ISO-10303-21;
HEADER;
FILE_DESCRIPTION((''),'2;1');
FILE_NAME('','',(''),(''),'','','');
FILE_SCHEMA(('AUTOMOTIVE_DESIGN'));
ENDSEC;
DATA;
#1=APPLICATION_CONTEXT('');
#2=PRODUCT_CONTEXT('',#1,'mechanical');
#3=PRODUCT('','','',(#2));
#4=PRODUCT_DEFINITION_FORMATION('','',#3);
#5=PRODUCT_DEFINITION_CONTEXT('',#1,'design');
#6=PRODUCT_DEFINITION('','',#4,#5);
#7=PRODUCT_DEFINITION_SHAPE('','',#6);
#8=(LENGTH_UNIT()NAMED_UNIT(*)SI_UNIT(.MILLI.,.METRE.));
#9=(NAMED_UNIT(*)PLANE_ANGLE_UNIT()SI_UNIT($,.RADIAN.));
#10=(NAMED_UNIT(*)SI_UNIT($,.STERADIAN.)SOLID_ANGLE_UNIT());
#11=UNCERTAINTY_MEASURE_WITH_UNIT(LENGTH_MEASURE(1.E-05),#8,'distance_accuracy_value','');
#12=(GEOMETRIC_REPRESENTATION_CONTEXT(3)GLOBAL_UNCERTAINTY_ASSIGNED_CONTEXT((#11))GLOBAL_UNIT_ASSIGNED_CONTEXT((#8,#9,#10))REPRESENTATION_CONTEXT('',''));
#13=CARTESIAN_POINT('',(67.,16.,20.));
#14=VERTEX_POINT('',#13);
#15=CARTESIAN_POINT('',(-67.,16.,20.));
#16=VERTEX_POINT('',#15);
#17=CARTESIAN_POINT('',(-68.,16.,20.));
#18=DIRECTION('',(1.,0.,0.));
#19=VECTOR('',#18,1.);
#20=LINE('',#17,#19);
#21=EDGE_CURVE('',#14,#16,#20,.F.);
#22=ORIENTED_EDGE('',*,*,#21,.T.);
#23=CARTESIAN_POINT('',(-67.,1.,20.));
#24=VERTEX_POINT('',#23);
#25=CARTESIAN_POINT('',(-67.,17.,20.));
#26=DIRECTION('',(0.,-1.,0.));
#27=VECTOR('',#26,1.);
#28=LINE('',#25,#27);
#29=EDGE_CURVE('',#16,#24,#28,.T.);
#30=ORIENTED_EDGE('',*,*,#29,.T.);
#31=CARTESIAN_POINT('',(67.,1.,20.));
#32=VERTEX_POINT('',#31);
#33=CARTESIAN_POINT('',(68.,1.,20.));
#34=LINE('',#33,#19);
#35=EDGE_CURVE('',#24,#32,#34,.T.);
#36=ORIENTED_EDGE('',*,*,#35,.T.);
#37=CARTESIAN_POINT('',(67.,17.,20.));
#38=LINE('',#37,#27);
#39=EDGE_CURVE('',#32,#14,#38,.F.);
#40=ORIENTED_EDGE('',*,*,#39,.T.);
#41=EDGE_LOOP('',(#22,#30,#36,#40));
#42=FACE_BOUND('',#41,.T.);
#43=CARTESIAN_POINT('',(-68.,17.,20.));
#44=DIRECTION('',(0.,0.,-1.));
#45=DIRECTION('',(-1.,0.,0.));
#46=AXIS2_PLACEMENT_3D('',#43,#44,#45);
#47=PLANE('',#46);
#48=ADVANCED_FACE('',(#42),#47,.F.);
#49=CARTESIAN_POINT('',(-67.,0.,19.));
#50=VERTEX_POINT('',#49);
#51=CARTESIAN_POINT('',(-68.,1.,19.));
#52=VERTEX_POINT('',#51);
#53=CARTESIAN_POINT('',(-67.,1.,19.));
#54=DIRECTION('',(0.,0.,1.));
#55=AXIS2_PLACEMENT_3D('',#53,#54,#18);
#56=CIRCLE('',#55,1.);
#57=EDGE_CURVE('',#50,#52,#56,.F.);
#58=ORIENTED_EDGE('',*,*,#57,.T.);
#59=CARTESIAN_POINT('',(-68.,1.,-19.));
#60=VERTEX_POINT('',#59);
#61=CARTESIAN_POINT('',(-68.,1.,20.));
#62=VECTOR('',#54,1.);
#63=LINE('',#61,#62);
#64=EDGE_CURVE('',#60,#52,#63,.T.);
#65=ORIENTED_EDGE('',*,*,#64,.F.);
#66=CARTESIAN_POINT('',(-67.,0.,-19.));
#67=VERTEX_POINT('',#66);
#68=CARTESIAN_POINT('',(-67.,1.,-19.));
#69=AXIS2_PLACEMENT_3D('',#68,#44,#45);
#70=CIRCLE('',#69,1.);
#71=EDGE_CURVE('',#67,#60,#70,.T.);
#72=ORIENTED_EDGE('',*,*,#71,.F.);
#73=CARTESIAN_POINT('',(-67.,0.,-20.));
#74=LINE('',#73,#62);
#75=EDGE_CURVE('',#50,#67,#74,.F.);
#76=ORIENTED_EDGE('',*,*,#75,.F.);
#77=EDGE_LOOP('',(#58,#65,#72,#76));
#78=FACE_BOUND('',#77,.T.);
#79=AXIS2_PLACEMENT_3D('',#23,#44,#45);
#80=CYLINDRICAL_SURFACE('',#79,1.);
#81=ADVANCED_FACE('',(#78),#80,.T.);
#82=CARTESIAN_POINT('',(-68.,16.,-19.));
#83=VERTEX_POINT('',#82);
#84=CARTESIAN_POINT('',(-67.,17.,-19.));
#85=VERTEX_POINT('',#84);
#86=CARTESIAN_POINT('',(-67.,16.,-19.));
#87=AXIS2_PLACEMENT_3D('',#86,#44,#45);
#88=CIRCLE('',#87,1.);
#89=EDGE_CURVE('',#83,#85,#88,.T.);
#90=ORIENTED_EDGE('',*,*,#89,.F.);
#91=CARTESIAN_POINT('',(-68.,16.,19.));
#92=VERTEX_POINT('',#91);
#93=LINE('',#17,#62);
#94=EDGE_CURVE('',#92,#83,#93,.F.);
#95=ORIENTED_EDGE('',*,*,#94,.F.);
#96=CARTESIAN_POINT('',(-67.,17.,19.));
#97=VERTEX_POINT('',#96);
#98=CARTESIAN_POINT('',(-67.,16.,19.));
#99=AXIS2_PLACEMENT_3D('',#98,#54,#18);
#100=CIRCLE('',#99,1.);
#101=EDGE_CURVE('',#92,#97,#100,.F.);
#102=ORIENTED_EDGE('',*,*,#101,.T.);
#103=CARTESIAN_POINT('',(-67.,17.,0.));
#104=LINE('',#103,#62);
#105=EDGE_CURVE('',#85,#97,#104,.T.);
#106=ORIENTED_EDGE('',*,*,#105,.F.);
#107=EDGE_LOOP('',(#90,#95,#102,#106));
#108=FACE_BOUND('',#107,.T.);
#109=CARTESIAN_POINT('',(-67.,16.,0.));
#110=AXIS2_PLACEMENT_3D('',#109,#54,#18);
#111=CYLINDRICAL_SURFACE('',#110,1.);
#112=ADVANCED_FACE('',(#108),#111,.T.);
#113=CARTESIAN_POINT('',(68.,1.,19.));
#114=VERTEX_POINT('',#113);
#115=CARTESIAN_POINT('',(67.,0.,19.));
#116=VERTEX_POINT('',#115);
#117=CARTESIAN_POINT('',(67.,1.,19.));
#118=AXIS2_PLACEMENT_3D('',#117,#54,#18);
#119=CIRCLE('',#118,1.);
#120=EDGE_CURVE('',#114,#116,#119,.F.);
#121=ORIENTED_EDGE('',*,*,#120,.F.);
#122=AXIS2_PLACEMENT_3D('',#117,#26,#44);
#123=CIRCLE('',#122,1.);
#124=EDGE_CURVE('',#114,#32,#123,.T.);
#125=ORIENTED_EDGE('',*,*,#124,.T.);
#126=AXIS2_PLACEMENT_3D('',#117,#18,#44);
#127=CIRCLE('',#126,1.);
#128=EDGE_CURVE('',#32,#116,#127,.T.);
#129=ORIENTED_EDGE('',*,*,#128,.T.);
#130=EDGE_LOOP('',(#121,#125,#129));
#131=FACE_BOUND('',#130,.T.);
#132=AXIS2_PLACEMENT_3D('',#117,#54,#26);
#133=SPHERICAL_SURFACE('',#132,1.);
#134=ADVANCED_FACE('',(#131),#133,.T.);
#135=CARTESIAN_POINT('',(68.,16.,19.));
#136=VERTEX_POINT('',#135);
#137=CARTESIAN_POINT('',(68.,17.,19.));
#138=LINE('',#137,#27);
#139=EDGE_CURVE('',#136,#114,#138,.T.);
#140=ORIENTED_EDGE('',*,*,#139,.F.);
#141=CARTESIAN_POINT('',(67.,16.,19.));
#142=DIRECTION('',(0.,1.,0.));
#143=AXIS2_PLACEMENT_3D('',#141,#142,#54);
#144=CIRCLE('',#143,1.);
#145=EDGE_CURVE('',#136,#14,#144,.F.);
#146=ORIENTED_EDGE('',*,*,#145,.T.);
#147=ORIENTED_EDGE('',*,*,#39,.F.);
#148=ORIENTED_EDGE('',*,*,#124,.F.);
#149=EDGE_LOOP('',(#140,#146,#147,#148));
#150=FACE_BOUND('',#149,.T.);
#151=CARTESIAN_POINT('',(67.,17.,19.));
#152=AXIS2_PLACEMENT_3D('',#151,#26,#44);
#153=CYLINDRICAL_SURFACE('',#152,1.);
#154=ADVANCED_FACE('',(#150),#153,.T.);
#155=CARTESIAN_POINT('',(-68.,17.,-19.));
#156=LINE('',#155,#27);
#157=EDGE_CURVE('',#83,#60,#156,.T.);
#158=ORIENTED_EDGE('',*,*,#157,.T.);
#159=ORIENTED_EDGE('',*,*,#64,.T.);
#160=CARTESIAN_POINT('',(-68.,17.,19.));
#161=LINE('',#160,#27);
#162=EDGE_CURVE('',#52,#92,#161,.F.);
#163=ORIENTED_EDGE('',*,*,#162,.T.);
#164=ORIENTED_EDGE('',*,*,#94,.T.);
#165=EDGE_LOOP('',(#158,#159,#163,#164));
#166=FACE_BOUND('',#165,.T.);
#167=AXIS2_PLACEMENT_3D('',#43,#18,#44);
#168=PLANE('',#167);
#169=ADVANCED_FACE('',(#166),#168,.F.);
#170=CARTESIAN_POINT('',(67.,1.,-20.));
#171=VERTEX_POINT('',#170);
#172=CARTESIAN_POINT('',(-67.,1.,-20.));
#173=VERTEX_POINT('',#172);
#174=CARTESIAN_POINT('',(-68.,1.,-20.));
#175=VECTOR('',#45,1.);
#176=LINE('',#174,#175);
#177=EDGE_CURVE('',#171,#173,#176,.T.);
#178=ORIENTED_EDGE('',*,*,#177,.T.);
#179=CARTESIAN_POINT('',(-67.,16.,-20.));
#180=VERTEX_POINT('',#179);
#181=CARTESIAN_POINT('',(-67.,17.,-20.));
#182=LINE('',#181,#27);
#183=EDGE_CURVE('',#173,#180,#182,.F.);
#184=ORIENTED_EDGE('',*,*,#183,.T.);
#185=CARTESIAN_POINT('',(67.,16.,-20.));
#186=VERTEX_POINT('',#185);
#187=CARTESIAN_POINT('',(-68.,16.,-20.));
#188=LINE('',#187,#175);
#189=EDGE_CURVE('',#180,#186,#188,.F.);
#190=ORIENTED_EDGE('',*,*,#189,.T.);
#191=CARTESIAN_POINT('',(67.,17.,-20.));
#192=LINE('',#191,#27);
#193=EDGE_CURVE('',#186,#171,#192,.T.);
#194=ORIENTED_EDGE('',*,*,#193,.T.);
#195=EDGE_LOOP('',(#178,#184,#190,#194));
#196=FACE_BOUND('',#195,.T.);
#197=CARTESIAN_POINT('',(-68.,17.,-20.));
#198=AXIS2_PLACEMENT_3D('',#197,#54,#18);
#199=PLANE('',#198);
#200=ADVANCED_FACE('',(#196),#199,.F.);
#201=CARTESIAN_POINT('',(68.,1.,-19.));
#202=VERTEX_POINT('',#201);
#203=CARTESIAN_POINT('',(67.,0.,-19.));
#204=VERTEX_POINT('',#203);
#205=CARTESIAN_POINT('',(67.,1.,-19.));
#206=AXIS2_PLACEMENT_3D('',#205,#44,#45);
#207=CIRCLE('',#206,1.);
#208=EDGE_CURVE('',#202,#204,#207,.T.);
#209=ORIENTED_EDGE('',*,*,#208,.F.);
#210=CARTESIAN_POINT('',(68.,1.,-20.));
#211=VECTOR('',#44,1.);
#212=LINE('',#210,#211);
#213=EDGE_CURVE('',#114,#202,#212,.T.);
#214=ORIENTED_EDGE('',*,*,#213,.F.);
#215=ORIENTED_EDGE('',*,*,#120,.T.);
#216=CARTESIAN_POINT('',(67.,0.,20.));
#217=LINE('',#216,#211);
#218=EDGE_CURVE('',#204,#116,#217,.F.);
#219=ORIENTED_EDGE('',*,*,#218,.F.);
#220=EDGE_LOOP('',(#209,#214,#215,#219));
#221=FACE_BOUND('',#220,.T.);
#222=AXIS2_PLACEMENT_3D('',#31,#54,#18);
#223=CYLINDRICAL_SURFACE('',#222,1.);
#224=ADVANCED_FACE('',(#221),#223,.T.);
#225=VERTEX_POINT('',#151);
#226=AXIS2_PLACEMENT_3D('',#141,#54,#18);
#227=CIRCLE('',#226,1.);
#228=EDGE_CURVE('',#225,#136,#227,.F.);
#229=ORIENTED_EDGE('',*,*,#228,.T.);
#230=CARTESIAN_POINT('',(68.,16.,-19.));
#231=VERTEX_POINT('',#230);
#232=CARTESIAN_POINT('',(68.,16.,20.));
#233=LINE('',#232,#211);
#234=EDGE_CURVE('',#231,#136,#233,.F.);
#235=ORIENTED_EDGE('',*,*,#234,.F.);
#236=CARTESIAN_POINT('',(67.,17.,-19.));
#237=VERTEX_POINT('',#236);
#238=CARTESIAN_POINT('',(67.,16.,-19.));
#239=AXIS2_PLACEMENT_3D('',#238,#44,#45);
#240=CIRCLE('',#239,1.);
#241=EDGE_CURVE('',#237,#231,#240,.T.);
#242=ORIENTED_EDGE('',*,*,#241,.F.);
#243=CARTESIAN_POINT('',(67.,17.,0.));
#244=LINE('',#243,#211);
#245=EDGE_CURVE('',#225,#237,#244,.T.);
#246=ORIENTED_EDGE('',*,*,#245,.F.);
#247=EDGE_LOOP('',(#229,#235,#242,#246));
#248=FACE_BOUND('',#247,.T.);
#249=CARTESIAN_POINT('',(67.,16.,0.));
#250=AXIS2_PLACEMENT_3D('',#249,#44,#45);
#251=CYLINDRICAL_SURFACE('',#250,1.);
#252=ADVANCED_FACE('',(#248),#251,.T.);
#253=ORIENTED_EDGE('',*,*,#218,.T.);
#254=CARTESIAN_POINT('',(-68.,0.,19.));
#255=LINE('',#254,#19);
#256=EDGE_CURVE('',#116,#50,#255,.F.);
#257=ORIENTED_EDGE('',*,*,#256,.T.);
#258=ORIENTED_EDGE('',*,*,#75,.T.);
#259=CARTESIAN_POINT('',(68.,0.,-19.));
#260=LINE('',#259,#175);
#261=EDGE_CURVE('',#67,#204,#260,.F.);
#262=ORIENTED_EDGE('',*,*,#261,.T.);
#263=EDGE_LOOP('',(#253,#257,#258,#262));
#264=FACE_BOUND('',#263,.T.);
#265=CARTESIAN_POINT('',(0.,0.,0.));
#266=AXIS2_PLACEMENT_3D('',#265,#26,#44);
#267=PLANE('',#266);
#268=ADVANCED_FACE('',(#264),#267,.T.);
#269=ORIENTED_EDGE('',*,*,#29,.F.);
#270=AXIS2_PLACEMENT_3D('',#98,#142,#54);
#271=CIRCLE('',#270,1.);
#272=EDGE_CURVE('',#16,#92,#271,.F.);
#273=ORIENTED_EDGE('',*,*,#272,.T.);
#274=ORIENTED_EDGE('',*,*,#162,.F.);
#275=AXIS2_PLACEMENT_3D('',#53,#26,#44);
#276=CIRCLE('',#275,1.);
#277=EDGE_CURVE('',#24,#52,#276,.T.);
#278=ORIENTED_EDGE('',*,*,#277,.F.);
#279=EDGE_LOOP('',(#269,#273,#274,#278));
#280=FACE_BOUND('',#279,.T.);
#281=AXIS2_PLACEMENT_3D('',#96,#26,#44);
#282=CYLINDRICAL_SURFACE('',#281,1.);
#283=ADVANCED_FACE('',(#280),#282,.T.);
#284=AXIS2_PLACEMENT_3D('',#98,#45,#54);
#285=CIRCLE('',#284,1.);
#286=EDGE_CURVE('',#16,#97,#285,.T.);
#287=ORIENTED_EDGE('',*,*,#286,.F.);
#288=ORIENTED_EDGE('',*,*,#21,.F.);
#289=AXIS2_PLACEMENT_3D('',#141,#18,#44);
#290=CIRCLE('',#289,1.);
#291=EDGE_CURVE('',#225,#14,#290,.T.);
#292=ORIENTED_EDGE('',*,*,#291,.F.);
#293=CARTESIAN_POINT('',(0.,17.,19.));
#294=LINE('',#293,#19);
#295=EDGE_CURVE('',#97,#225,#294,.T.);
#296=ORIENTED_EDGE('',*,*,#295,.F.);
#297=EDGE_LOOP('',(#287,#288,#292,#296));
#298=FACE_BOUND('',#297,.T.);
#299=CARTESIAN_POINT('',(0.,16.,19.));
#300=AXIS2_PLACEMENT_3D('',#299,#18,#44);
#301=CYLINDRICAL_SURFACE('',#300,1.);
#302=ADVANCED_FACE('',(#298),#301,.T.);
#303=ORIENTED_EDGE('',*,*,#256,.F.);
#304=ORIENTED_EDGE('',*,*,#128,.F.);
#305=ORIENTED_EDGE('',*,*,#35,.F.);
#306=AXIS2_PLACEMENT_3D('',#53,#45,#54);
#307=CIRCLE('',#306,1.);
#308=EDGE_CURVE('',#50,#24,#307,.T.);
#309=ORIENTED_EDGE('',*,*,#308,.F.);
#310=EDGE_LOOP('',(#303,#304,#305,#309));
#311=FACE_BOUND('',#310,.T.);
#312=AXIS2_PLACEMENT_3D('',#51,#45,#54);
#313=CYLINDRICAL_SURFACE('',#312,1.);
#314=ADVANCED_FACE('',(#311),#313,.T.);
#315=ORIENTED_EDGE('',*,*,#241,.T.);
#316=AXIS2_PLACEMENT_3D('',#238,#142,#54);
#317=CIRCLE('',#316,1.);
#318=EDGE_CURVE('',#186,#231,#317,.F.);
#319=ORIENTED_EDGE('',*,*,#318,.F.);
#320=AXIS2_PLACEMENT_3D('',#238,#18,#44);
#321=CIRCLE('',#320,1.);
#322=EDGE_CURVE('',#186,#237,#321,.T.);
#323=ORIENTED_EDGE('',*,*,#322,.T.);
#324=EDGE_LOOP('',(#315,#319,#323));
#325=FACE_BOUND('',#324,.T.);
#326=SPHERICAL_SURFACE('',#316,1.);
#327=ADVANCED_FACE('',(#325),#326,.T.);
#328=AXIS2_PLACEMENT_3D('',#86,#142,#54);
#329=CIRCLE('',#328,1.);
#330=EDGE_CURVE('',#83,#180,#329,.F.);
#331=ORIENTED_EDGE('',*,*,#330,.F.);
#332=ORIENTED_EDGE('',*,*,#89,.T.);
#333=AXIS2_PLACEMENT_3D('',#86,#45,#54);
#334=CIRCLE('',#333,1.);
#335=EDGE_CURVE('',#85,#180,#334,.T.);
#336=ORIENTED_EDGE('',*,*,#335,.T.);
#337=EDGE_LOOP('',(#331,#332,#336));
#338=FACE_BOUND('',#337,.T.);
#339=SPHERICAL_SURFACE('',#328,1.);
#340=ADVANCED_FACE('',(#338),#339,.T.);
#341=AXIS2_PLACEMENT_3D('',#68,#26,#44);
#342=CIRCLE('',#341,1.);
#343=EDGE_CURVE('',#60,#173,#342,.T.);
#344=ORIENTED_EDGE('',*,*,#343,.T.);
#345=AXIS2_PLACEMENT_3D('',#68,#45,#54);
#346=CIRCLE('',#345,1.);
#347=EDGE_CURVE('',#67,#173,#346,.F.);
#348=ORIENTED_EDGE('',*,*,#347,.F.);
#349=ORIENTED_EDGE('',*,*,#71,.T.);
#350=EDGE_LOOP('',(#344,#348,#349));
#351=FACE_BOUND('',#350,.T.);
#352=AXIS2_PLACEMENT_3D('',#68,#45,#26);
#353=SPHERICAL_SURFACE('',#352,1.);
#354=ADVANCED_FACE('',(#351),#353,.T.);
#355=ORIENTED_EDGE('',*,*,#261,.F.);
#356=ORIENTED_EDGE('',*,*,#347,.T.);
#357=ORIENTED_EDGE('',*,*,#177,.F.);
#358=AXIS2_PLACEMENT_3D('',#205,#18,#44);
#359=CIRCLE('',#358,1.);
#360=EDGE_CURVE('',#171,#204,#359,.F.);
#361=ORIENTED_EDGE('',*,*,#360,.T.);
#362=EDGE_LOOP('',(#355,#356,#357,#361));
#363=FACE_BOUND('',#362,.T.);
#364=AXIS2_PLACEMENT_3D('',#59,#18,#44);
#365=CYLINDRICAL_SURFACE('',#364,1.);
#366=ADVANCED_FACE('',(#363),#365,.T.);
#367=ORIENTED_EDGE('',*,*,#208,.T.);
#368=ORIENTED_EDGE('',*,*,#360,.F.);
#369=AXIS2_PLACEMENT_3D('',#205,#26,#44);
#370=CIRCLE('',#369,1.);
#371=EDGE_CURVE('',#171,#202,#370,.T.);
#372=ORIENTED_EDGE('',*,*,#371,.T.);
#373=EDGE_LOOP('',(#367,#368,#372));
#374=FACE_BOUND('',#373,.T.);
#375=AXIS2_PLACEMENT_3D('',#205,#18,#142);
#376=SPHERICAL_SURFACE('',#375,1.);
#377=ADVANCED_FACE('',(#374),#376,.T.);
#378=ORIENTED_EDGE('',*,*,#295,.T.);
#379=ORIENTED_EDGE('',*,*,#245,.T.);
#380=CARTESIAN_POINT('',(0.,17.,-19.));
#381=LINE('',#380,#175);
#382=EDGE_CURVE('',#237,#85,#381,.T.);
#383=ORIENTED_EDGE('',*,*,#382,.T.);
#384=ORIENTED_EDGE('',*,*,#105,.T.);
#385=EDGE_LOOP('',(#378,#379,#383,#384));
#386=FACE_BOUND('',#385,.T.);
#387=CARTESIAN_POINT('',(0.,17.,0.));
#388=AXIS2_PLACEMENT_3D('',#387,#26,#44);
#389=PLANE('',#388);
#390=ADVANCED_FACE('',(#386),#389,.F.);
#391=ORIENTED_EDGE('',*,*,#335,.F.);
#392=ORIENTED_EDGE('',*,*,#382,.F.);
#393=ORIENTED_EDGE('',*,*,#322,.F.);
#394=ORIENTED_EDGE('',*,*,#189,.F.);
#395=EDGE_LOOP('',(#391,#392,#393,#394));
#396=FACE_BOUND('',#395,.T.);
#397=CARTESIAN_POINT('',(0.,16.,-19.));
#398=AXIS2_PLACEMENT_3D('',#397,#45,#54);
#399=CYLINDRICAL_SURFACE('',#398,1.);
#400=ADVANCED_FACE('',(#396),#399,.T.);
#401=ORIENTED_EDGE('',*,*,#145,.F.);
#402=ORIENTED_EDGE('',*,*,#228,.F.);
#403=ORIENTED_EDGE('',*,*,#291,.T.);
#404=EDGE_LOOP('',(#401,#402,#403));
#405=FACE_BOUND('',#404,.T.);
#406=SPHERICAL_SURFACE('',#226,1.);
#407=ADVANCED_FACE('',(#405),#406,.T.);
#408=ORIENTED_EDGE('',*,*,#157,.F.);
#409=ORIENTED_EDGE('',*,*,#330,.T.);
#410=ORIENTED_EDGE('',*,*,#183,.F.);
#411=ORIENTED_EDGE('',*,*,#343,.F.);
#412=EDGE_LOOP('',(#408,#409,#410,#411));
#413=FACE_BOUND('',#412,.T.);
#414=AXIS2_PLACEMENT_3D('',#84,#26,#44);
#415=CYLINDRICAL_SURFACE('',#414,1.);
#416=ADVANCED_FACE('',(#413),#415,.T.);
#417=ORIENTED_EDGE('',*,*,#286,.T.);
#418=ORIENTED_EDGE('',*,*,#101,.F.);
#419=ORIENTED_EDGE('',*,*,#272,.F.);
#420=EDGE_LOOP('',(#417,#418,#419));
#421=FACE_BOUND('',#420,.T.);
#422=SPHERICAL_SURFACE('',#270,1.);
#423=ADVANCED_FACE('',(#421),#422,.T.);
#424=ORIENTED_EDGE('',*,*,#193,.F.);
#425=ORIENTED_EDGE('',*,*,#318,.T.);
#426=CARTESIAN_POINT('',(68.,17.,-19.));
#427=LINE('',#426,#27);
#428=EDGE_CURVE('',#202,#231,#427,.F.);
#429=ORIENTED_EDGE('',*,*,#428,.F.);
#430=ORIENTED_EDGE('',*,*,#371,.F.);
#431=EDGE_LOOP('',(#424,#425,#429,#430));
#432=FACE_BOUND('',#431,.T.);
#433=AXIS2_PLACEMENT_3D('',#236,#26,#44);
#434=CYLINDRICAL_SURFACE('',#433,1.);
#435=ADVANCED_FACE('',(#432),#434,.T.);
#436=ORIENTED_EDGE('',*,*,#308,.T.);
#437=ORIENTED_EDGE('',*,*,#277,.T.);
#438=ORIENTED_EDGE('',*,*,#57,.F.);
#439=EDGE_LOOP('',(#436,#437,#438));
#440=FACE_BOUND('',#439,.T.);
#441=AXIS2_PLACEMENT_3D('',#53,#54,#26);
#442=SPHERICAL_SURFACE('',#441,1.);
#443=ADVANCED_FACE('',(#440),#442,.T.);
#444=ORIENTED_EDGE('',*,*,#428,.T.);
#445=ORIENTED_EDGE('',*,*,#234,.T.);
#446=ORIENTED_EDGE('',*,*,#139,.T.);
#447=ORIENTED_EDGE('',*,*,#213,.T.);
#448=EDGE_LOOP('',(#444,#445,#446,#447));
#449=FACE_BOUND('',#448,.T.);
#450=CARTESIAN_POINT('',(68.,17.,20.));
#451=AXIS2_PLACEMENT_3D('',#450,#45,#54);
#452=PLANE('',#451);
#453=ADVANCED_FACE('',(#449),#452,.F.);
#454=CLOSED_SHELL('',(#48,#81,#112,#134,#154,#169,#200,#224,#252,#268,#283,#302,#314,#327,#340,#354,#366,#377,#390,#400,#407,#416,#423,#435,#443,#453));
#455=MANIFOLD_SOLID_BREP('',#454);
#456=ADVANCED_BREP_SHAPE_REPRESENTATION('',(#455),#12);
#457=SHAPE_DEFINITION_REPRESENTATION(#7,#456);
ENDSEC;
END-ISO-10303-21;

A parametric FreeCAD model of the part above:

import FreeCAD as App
import Part
import Sketcher

V = App.Vector

doc = App.newDocument("Part")
body = doc.addObject("PartDesign::Body", "Body")

sketch1 = doc.addObject("Sketcher::SketchObject", "Sketch")
body.addObject(sketch1)
sketch1.AttachmentSupport = (doc.XZ_Plane, [""])
sketch1.MapMode = "FlatFace"
sketch1.addGeometry([
    Part.LineSegment(V(-68, -20, 0), V(-68, 20, 0)),
    Part.LineSegment(V(-68, 20, 0), V(68, 20, 0)),
    Part.LineSegment(V(68, 20, 0), V(68, -20, 0)),
    Part.LineSegment(V(68, -20, 0), V(-68, -20, 0)),
], False)
sketch1.addConstraint([
    Sketcher.Constraint("Coincident", 0, 2, 1, 1),
    Sketcher.Constraint("Coincident", 1, 2, 2, 1),
    Sketcher.Constraint("Coincident", 2, 2, 3, 1),
    Sketcher.Constraint("Coincident", 3, 2, 0, 1),
    Sketcher.Constraint("Vertical", 0),
    Sketcher.Constraint("Horizontal", 1),
    Sketcher.Constraint("Vertical", 2),
    Sketcher.Constraint("Horizontal", 3),
    Sketcher.Constraint("Symmetric", 0, 2, 2, 2, -1, 1),
    Sketcher.Constraint("DistanceX", 1, 1, 1, 2, 136.0),
    Sketcher.Constraint("DistanceY", 0, 1, 0, 2, 40.0),
])
pad1 = doc.addObject("PartDesign::Pad", "Pad")
body.addObject(pad1)
pad1.Profile = sketch1
pad1.Length = 17
pad1.Reversed = True
doc.recompute()

fillet = doc.addObject("PartDesign::Fillet", "Fillet")
body.addObject(fillet)
fillet.Base = (pad1, ["Edge1"])
fillet.UseAllEdges = True
fillet.Radius = 1

doc.recompute()
